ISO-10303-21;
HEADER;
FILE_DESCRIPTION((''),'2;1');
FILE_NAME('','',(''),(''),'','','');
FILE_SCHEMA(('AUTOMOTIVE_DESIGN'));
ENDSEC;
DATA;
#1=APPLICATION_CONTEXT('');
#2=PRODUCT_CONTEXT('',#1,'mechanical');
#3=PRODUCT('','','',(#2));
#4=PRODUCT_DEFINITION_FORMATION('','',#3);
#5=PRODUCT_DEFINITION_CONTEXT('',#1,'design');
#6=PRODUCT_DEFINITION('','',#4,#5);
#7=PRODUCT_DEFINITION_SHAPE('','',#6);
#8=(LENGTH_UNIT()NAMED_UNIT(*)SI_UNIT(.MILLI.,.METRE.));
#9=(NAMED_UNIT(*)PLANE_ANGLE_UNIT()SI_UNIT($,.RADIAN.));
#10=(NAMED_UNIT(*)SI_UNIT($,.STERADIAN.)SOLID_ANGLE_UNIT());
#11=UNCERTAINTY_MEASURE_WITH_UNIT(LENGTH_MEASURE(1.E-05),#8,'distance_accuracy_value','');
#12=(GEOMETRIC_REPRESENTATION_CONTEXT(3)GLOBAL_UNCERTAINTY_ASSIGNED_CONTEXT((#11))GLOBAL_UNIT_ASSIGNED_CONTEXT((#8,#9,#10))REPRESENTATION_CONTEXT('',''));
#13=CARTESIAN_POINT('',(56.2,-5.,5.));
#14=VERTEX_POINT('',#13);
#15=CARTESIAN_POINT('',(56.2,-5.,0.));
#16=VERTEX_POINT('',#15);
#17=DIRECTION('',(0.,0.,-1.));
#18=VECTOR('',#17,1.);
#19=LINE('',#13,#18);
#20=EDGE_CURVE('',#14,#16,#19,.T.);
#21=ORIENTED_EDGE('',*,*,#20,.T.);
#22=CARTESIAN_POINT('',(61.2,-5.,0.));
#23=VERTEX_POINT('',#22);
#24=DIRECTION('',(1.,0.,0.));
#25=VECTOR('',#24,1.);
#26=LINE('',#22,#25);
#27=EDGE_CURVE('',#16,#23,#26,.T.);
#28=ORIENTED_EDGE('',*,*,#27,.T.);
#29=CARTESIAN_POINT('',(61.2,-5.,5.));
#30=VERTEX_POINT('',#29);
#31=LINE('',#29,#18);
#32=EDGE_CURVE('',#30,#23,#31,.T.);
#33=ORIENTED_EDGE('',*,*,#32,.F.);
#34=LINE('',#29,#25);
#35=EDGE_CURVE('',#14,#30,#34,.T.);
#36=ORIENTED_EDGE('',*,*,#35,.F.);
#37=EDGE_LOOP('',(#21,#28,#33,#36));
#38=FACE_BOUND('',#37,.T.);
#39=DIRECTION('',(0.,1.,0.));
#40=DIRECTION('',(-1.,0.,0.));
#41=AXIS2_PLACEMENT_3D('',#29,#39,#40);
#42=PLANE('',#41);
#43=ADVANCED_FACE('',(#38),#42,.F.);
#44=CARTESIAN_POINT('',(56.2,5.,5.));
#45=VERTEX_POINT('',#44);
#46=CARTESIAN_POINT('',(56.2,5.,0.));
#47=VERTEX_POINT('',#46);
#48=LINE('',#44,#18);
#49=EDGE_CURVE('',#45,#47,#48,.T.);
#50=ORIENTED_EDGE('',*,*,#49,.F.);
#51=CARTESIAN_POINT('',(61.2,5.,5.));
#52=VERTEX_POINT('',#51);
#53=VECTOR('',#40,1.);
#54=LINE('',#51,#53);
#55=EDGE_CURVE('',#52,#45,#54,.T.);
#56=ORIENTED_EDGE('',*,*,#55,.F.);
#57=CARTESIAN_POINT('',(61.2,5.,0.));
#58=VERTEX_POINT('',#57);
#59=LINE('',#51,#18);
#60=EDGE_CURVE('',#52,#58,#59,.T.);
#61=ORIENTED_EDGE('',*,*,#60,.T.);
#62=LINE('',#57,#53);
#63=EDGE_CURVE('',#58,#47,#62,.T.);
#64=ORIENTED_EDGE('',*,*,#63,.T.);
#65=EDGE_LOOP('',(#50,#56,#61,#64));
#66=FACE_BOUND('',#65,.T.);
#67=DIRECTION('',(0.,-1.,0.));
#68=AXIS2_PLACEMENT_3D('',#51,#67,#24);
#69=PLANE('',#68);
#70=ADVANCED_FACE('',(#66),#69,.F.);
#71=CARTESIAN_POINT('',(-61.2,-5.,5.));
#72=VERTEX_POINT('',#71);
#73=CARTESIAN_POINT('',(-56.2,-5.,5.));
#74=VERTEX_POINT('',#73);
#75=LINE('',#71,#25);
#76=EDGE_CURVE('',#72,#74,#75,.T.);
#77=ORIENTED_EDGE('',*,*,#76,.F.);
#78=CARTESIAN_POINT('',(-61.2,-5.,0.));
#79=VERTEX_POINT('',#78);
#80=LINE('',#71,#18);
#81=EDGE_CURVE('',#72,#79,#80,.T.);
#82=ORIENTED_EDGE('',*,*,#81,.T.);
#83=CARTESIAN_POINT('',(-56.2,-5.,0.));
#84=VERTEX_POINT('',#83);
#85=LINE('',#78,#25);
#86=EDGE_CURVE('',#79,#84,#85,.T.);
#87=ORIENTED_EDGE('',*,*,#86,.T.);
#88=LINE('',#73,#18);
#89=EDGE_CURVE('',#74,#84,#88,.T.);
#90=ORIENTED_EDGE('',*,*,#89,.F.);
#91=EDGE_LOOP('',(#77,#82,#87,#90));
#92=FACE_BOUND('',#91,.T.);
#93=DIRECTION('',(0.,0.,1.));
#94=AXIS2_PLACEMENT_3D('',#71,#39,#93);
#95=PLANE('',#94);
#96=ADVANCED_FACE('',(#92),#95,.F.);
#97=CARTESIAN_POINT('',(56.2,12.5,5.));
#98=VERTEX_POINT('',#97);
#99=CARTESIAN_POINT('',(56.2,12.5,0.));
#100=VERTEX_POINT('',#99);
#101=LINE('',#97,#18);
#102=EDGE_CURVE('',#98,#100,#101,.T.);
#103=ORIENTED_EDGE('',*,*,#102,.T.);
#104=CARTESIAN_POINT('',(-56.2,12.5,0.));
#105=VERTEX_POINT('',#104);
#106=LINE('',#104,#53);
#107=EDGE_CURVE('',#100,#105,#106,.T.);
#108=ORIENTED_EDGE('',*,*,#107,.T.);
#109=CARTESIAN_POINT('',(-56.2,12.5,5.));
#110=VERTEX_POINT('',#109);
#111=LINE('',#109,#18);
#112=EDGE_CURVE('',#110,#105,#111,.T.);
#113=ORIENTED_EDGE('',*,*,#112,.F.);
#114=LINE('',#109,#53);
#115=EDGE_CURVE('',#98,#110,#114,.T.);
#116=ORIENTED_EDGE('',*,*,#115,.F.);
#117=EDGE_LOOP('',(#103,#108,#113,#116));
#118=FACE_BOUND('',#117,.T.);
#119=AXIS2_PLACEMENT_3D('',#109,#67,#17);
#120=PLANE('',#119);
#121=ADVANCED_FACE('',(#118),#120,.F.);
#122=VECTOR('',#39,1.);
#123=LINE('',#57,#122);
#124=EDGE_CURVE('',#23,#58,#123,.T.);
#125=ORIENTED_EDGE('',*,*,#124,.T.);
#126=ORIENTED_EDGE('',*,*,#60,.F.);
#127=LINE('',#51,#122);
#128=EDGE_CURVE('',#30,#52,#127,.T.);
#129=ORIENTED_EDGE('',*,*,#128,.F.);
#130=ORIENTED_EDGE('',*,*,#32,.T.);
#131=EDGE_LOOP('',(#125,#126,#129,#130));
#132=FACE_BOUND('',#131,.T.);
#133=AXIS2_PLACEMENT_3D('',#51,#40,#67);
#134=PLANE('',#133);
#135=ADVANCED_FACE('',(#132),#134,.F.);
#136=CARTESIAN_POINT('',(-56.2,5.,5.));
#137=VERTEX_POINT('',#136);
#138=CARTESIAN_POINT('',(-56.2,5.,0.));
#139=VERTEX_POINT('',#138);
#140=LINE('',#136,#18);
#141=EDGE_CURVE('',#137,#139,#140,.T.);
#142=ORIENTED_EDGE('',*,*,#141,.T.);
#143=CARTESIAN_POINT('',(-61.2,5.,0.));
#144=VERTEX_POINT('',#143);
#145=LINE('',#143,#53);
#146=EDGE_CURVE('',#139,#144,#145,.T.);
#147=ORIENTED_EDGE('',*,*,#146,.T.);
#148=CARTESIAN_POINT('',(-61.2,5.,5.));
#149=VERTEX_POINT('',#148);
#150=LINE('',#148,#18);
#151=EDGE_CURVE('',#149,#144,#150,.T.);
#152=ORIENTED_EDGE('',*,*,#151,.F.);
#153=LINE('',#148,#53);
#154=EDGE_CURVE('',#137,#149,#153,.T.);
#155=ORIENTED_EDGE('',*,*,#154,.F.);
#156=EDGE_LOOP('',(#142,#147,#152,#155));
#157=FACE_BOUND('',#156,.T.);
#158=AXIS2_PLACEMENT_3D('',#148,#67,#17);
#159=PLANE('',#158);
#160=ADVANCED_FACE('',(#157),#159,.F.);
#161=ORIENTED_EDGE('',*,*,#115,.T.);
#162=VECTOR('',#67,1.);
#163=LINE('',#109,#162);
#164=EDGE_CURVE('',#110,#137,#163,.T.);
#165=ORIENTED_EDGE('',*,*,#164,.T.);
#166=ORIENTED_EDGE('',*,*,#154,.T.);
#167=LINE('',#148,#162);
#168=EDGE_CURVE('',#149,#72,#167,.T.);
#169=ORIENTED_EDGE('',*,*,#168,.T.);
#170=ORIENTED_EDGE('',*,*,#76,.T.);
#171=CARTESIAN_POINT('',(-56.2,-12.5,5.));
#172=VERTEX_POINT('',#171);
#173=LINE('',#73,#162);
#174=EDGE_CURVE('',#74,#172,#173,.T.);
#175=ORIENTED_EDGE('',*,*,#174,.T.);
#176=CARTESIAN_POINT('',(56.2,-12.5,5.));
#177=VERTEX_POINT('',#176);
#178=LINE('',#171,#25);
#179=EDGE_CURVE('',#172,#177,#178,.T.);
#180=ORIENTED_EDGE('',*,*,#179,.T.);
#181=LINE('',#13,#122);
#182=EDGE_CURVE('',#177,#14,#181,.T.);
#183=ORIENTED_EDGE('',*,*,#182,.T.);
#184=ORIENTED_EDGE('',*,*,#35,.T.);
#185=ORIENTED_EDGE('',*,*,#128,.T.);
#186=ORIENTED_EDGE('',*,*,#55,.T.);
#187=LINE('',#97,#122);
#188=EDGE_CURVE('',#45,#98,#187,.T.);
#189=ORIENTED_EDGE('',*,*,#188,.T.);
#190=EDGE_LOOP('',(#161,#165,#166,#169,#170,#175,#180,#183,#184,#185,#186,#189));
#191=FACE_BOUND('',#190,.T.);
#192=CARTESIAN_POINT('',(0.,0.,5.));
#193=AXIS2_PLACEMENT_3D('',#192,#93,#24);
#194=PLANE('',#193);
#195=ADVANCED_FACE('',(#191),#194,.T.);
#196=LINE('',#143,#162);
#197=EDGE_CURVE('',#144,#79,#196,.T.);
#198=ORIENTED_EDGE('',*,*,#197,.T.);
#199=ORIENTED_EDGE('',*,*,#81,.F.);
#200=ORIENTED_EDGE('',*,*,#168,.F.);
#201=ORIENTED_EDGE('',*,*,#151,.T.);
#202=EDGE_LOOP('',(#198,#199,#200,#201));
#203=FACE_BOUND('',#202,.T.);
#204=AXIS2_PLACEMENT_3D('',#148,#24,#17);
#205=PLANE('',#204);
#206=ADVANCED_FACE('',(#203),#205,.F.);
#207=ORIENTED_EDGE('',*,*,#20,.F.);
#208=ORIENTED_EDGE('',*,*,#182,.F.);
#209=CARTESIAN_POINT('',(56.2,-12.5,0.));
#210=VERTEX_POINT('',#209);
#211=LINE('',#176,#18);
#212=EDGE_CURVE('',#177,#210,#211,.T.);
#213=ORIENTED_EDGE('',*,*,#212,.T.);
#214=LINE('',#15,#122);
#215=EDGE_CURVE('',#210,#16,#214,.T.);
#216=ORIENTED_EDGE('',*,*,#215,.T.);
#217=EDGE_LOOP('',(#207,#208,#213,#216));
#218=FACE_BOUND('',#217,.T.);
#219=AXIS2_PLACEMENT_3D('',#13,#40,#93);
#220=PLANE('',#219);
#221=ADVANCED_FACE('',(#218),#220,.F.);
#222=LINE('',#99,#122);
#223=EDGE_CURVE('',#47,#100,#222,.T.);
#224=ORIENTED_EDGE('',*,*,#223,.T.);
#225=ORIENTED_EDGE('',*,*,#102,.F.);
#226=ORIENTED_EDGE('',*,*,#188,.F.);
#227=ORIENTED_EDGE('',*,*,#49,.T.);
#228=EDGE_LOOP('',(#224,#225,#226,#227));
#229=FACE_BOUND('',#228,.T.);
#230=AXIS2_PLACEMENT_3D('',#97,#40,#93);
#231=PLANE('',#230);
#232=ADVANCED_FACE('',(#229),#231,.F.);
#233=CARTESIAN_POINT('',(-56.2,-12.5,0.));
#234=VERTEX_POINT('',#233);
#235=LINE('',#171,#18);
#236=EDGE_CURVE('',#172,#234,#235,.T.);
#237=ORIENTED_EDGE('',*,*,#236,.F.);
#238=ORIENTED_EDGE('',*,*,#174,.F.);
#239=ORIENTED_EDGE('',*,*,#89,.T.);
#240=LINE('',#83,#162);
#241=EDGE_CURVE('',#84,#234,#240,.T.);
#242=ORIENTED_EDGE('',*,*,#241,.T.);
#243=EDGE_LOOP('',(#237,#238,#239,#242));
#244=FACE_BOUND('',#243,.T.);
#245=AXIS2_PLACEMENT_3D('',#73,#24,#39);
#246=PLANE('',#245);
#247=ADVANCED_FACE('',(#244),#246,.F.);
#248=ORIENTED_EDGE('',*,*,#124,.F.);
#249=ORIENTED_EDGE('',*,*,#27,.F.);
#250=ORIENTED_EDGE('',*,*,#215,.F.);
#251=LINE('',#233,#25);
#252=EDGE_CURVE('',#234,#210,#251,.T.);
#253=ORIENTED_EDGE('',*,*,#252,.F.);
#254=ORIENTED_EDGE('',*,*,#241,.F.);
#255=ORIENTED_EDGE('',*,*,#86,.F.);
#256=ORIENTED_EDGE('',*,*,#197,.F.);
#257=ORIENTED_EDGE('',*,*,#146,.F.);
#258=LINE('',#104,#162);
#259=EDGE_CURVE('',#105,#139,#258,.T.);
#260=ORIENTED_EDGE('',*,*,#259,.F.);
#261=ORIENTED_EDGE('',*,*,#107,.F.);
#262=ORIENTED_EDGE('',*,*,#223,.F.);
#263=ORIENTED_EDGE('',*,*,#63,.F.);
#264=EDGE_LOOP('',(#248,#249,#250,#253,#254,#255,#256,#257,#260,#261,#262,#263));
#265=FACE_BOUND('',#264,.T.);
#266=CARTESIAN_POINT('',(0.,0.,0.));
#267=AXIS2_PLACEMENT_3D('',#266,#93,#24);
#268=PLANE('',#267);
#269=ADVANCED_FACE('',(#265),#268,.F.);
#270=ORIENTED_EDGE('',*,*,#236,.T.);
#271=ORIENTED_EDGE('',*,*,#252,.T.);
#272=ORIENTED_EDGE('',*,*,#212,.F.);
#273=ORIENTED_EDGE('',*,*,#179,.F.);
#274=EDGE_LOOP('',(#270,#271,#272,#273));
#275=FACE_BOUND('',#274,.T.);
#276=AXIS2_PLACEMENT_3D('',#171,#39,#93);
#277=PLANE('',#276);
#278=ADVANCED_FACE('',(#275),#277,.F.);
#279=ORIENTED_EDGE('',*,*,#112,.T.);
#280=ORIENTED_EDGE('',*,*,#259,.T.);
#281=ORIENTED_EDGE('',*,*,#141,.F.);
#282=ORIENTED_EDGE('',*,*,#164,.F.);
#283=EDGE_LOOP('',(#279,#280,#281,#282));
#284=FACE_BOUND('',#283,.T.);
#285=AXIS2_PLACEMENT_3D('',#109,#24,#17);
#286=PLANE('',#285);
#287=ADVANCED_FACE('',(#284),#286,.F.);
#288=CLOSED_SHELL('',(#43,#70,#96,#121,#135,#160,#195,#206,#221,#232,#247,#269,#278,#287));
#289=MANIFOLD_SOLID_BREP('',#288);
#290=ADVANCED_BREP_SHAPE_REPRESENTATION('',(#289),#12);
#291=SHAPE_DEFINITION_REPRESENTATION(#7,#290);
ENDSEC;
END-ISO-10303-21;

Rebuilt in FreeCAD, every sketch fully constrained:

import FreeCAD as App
import Part
import Sketcher


def add_polygon(sketch, points):
    """Adds a closed chain of lines whose ends are joined by coincident constraints."""
    first, n = sketch.GeometryCount, len(points)
    for a, b in zip(points, points[1:] + points[:1]):
        sketch.addGeometry(Part.LineSegment(App.Vector(*a, 0), App.Vector(*b, 0)), False)
    for i in range(n):
        sketch.addConstraint(Sketcher.Constraint("Coincident", first + i, 2, first + (i + 1) % n, 1))

doc = App.newDocument("Part")
body = doc.addObject("PartDesign::Body", "Body")

# Sketch on XY plane
sketch1 = body.newObject("Sketcher::SketchObject", "Sketch")
sketch1.AttachmentSupport = (doc.getObject("XY_Plane"), [""])
sketch1.MapMode = "FlatFace"
add_polygon(sketch1, [(-61, -5), (-56, -5), (-56, -12), (56, -12), (56, -5), (61, -5), (61, 5), (56, 5), (56, 12), (-56, 12), (-56, 5), (-61, 5)])  # lines 0-11
sketch1.addConstraint([
    Sketcher.Constraint("Horizontal", 0),
    Sketcher.Constraint("Vertical", 1),
    Sketcher.Constraint("Horizontal", 2),
    Sketcher.Constraint("Vertical", 3),
    Sketcher.Constraint("Horizontal", 4),
    Sketcher.Constraint("Vertical", 5),
    Sketcher.Constraint("Horizontal", 6),
    Sketcher.Constraint("Vertical", 7),
    Sketcher.Constraint("Horizontal", 8),
    Sketcher.Constraint("Vertical", 9),
    Sketcher.Constraint("Horizontal", 10),
    Sketcher.Constraint("Vertical", 11),
    Sketcher.Constraint("Symmetric", 0, 2, 6, 2, -1, 1),
    Sketcher.Constraint("Symmetric", 2, 2, 8, 2, -1, 1),
    Sketcher.Constraint("Symmetric", 4, 2, 10, 2, -1, 1),
    Sketcher.Constraint("Symmetric", 0, 2, 3, 2, -2),
    Sketcher.Constraint("DistanceX", 0, 1, 0, 2, 5.0),
    Sketcher.Constraint("DistanceY", 5, 1, 5, 2, 10.0),
    Sketcher.Constraint("DistanceX", 2, 1, 2, 2, 112.4),
    Sketcher.Constraint("DistanceY", 1, 2, 1, 1, 7.5),
])
pad1 = body.newObject("PartDesign::Pad", "Pad")
pad1.Profile = sketch1
pad1.Length = 5

doc.recompute()
